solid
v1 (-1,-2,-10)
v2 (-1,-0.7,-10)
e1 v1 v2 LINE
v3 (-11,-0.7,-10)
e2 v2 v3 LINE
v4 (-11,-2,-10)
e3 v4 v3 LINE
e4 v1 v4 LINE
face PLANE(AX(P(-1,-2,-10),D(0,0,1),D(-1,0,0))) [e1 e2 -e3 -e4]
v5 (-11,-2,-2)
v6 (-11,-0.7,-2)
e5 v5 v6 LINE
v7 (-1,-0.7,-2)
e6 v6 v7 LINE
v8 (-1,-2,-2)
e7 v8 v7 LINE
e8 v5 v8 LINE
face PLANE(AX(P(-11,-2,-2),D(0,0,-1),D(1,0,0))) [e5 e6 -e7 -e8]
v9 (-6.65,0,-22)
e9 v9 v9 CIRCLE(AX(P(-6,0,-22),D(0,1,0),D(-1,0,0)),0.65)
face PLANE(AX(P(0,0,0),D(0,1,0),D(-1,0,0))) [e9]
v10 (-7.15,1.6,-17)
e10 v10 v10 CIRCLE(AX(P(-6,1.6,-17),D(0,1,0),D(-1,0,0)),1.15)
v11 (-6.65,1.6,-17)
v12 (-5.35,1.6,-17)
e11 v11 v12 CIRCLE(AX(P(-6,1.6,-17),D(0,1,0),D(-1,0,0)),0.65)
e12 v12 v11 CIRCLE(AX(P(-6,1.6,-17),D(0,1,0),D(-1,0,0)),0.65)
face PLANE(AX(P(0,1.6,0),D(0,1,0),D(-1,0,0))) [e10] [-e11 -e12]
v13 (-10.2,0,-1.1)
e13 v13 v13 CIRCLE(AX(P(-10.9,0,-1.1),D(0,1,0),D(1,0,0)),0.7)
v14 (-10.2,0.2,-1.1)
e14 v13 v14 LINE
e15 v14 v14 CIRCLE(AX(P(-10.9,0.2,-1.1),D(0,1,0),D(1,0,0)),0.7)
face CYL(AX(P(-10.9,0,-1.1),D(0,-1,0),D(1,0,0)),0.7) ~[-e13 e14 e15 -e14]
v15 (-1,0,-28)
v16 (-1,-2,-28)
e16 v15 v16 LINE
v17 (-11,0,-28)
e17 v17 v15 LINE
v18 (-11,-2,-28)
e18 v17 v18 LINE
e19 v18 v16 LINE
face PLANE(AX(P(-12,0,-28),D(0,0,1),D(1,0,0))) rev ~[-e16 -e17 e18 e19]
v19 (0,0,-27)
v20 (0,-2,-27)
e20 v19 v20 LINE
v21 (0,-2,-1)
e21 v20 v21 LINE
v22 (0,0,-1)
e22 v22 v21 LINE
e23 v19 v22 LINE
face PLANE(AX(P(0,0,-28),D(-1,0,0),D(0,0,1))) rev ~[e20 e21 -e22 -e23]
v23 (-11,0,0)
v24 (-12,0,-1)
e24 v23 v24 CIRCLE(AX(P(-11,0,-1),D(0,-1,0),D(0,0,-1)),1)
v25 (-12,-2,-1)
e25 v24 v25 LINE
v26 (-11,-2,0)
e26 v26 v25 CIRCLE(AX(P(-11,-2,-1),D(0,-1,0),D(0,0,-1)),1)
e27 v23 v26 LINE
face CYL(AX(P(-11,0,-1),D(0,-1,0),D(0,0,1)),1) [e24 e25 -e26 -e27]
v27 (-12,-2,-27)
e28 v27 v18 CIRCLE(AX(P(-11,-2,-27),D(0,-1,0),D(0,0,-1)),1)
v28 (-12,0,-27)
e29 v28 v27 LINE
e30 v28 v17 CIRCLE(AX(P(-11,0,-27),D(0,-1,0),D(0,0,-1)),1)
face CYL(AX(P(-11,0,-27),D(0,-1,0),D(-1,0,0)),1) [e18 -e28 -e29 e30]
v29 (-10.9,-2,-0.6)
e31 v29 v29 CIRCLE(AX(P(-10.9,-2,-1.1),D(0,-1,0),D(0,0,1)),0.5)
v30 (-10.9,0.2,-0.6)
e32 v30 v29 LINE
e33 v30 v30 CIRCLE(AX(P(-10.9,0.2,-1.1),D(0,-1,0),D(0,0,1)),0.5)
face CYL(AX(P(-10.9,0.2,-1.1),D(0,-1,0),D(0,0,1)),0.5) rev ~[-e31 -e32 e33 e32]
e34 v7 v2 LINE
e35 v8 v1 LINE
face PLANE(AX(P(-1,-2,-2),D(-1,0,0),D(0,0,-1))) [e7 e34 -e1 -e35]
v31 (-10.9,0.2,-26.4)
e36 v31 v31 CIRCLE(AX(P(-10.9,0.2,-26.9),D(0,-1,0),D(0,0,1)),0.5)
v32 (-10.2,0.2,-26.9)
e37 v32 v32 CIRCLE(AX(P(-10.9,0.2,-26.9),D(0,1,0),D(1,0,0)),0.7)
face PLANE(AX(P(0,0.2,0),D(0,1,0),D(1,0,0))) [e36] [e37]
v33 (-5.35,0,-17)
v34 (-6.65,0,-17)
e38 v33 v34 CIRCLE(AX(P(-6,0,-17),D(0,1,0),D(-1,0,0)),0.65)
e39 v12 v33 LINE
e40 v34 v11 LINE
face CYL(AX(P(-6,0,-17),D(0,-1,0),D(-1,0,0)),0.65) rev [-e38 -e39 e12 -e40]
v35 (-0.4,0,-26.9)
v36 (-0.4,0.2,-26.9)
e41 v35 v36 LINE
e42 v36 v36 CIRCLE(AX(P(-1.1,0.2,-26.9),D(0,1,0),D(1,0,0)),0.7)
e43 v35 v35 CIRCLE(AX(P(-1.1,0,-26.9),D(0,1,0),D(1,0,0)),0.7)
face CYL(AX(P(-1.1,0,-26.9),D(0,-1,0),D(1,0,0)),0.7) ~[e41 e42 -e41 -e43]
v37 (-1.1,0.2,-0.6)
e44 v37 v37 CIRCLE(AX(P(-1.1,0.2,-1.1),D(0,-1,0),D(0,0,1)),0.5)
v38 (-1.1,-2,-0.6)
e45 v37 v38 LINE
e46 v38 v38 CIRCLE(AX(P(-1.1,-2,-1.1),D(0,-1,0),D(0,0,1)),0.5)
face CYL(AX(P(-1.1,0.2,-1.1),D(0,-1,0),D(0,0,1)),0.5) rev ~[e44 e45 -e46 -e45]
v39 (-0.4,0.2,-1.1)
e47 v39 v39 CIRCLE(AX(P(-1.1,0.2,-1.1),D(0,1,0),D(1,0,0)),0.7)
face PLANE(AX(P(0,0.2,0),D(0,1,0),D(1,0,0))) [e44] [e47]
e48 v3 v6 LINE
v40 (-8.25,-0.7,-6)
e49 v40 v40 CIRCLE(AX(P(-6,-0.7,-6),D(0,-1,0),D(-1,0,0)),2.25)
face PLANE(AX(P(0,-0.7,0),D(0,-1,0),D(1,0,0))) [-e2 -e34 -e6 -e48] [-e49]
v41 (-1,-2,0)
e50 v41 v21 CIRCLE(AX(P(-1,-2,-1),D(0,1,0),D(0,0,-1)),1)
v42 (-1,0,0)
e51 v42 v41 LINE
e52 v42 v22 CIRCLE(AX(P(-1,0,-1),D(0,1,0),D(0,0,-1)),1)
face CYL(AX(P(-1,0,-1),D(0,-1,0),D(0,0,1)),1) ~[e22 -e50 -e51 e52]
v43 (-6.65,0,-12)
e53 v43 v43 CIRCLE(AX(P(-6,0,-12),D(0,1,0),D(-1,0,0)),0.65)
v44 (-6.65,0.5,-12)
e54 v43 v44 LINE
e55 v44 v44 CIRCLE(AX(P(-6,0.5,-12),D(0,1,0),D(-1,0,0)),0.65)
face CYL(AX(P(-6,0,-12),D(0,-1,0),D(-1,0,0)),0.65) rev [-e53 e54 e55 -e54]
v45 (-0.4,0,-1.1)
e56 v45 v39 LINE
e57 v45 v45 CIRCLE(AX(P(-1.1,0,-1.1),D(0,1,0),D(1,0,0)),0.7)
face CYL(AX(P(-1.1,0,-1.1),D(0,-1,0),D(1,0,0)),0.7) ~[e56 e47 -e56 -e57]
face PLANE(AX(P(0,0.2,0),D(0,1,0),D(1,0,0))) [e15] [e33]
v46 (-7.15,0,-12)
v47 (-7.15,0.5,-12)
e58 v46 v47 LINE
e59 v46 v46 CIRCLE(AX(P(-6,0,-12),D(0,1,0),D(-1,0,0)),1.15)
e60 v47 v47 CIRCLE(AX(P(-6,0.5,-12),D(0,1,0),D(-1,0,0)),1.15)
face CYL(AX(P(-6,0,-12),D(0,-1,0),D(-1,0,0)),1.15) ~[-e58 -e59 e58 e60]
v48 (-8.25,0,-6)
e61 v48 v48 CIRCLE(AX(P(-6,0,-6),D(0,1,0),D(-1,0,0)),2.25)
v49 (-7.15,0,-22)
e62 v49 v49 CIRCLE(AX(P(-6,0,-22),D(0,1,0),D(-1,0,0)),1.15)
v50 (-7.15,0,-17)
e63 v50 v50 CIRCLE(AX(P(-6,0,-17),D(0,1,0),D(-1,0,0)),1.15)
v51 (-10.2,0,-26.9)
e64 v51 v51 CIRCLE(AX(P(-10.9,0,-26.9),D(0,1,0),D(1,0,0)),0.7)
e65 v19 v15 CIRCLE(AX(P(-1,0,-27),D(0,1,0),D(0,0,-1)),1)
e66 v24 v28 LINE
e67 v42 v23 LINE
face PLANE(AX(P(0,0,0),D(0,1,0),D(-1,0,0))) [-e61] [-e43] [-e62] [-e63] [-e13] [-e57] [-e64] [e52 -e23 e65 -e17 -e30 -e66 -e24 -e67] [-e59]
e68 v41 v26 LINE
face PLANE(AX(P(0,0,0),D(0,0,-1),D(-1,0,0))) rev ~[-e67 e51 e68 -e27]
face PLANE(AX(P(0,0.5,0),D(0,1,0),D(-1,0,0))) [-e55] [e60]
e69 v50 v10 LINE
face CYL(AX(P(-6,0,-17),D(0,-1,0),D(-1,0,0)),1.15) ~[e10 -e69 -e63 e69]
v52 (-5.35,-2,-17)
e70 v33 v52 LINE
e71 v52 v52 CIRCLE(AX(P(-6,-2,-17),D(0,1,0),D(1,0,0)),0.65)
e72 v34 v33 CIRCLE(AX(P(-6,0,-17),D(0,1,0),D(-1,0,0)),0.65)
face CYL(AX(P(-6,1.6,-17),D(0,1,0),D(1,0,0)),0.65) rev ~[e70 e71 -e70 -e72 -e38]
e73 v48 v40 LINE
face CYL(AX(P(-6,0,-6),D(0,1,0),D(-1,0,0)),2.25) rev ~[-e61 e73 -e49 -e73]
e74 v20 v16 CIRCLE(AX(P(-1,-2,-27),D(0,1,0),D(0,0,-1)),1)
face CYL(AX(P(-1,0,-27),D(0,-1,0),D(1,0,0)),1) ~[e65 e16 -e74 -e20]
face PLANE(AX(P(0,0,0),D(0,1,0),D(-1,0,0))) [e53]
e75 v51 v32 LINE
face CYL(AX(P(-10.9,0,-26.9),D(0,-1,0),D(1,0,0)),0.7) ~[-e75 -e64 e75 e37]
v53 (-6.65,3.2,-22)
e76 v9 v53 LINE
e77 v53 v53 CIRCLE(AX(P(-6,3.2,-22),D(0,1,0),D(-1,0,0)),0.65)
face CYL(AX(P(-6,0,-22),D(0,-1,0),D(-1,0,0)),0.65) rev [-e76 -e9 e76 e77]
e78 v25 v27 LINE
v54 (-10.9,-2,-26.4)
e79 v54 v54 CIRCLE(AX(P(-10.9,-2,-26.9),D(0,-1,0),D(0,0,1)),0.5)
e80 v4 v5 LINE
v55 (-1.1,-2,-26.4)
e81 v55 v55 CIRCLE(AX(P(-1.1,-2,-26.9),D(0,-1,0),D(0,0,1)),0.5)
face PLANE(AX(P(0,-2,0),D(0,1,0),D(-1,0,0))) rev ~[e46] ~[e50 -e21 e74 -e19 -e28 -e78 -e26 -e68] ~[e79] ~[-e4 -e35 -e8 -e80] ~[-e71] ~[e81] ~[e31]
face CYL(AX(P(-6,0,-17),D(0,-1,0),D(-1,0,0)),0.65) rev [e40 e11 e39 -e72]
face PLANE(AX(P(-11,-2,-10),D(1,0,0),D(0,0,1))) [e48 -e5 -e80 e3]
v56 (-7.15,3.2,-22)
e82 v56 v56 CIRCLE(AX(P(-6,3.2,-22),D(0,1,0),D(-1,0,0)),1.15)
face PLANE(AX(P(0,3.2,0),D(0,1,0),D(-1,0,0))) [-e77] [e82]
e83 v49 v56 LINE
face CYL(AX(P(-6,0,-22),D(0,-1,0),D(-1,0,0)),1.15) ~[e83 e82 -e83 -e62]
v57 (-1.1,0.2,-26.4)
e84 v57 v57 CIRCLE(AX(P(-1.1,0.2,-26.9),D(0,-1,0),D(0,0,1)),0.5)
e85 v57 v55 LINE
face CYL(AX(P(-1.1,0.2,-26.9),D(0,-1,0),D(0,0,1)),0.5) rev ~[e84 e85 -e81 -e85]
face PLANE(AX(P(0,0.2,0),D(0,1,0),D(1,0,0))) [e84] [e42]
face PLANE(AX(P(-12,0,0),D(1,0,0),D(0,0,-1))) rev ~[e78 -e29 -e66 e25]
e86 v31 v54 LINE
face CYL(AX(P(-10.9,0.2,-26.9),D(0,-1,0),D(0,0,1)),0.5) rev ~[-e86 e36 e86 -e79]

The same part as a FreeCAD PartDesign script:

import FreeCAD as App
import Part
import Sketcher


def edges_at(feature, points):
    """Names of the edges that pass closest to the given points."""
    edges = feature.Shape.Edges
    near = lambda p: min(range(len(edges)), key=lambda i: edges[i].distToShape(Part.Vertex(*p))[0])
    return sorted({f"Edge{near(p) + 1}" for p in points})


def add_polygon(sketch, points):
    """Adds a closed chain of lines whose ends are joined by coincident constraints."""
    first, n = sketch.GeometryCount, len(points)
    for a, b in zip(points, points[1:] + points[:1]):
        sketch.addGeometry(Part.LineSegment(App.Vector(*a, 0), App.Vector(*b, 0)), False)
    for i in range(n):
        sketch.addConstraint(Sketcher.Constraint("Coincident", first + i, 2, first + (i + 1) % n, 1))

doc = App.newDocument("Part")
body = doc.addObject("PartDesign::Body", "Body")

# Sketch on XZ plane
sketch1 = body.newObject("Sketcher::SketchObject", "Sketch")
sketch1.AttachmentSupport = (doc.getObject("XZ_Plane"), [""])
sketch1.MapMode = "FlatFace"
add_polygon(sketch1, [(-12, 0), (0, 0), (0, -28), (-12, -28)])  # lines 0-3
sketch1.addConstraint(Sketcher.Constraint("Horizontal", 0))
sketch1.addConstraint(Sketcher.Constraint("Vertical", 1))
sketch1.addConstraint(Sketcher.Constraint("Horizontal", 2))
sketch1.addConstraint(Sketcher.Constraint("Vertical", 3))
sketch1.addConstraint(Sketcher.Constraint("Coincident", 0, 2, -1, 1))
sketch1.addConstraint(Sketcher.Constraint("DistanceX", 0, 1, 0, 2, 12.0))
sketch1.addConstraint(Sketcher.Constraint("DistanceY", 1, 2, 1, 1, 28.0))
pad1 = body.newObject("PartDesign::Pad", "Pad")
pad1.Profile = sketch1
pad1.Length = 2

# Sketch on XZ plane
sketch2 = body.newObject("Sketcher::SketchObject", "Sketch001")
sketch2.AttachmentSupport = (doc.getObject("XZ_Plane"), [""])
sketch2.MapMode = "FlatFace"
sketch2.addGeometry(Part.Circle(App.Vector(-6, -12, 0), App.Vector(0, 0, 1), 1.1), False)
sketch2.addGeometry(Part.Circle(App.Vector(-6, -12, 0), App.Vector(0, 0, 1), 0.7), False)
sketch2.addConstraint(Sketcher.Constraint("Coincident", 1, 3, 0, 3))
sketch2.addConstraint(Sketcher.Constraint("Diameter", 1, 1.3))
sketch2.addConstraint(Sketcher.Constraint("DistanceX", 0, 3, -1, 1, 6.0))
sketch2.addConstraint(Sketcher.Constraint("Diameter", 0, 2.3))
sketch2.addConstraint(Sketcher.Constraint("DistanceY", 0, 3, -1, 1, 12.0))
pad2 = body.newObject("PartDesign::Pad", "Pad001")
pad2.Profile = sketch2
pad2.Length = 0.5
pad2.Reversed = True

# Sketch on XZ plane
sketch3 = body.newObject("Sketcher::SketchObject", "Sketch002")
sketch3.AttachmentSupport = (doc.getObject("XZ_Plane"), [""])
sketch3.MapMode = "FlatFace"
sketch3.addGeometry(Part.Circle(App.Vector(-6, -17, 0), App.Vector(0, 0, 1), 1.1), False)
sketch3.addGeometry(Part.Circle(App.Vector(-6, -17, 0), App.Vector(0, 0, 1), 0.7), False)
sketch3.addConstraint(Sketcher.Constraint("Coincident", 1, 3, 0, 3))
sketch3.addConstraint(Sketcher.Constraint("Diameter", 1, 1.3))
sketch3.addConstraint(Sketcher.Constraint("DistanceX", 0, 3, -1, 1, 6.0))
sketch3.addConstraint(Sketcher.Constraint("Diameter", 0, 2.3))
sketch3.addConstraint(Sketcher.Constraint("DistanceY", 0, 3, -1, 1, 17.0))
pad3 = body.newObject("PartDesign::Pad", "Pad002")
pad3.Profile = sketch3
pad3.Length = 1.6
pad3.Reversed = True

# Sketch on XZ plane
sketch4 = body.newObject("Sketcher::SketchObject", "Sketch003")
sketch4.AttachmentSupport = (doc.getObject("XZ_Plane"), [""])
sketch4.MapMode = "FlatFace"
sketch4.addGeometry(Part.Circle(App.Vector(-6, -22, 0), App.Vector(0, 0, 1), 1.1), False)
sketch4.addGeometry(Part.Circle(App.Vector(-6, -22, 0), App.Vector(0, 0, 1), 0.7), False)
sketch4.addConstraint(Sketcher.Constraint("Coincident", 1, 3, 0, 3))
sketch4.addConstraint(Sketcher.Constraint("Diameter", 1, 1.3))
sketch4.addConstraint(Sketcher.Constraint("DistanceX", 0, 3, -1, 1, 6.0))
sketch4.addConstraint(Sketcher.Constraint("Diameter", 0, 2.3))
sketch4.addConstraint(Sketcher.Constraint("DistanceY", 0, 3, -1, 1, 22.0))
pad4 = body.newObject("PartDesign::Pad", "Pad003")
pad4.Profile = sketch4
pad4.Length = 3.2
pad4.Reversed = True

# Sketch on XZ plane
sketch5 = body.newObject("Sketcher::SketchObject", "Sketch004")
sketch5.AttachmentSupport = (doc.getObject("XZ_Plane"), [""])
sketch5.MapMode = "FlatFace"
sketch5.AttachmentOffset = App.Placement(App.Vector(0, 0, -1.6), App.Rotation())
sketch5.addGeometry(Part.Circle(App.Vector(-6, -17, 0), App.Vector(0, 0, 1), 0.7), False)
sketch5.addConstraint(Sketcher.Constraint("Diameter", 0, 1.3))
sketch5.addConstraint(Sketcher.Constraint("DistanceX", 0, 3, -1, 1, 6.0))
sketch5.addConstraint(Sketcher.Constraint("DistanceY", 0, 3, -1, 1, 17.0))
pocket1 = body.newObject("PartDesign::Pocket", "Pocket")
pocket1.Profile = sketch5
pocket1.Type = "ThroughAll"
pocket1.Reversed = True

# Sketch on XZ plane
sketch6 = body.newObject("Sketcher::SketchObject", "Sketch005")
sketch6.AttachmentSupport = (doc.getObject("XZ_Plane"), [""])
sketch6.MapMode = "FlatFace"
sketch6.addGeometry(Part.Circle(App.Vector(-6, -6, 0), App.Vector(0, 0, 1), 2.2), False)
sketch6.addConstraint(Sketcher.Constraint("Diameter", 0, 4.5))
sketch6.addConstraint(Sketcher.Constraint("DistanceX", 0, 3, -1, 1, 6.0))
sketch6.addConstraint(Sketcher.Constraint("DistanceY", 0, 3, -1, 1, 6.0))
pocket2 = body.newObject("PartDesign::Pocket", "Pocket001")
pocket2.Profile = sketch6
pocket2.Type = "ThroughAll"
pocket2.Reversed = True

# Sketch on XZ plane
sketch7 = body.newObject("Sketcher::SketchObject", "Sketch006")
sketch7.AttachmentSupport = (doc.getObject("XZ_Plane"), [""])
sketch7.MapMode = "FlatFace"
sketch7.AttachmentOffset = App.Placement(App.Vector(0, 0, 2), App.Rotation())
add_polygon(sketch7, [(-11, -10), (-1, -10), (-1, -2), (-11, -2)])  # lines 0-3
sketch7.addGeometry(Part.Circle(App.Vector(-6, -6, 0), App.Vector(0, 0, 1), 2.2), False)  # 4
sketch7.addConstraint(Sketcher.Constraint("Horizontal", 0))
sketch7.addConstraint(Sketcher.Constraint("Vertical", 1))
sketch7.addConstraint(Sketcher.Constraint("Horizontal", 2))
sketch7.addConstraint(Sketcher.Constraint("Vertical", 3))
sketch7.addConstraint(Sketcher.Constraint("DistanceX", 0, 1, 0, 2, 10.0))
sketch7.addConstraint(Sketcher.Constraint("DistanceY", 1, 1, 1, 2, 8.0))
sketch7.addConstraint(Sketcher.Constraint("DistanceY", 0, 2, -1, 1, 10.0))
sketch7.addConstraint(Sketcher.Constraint("Diameter", 4, 4.5))
sketch7.addConstraint(Sketcher.Constraint("DistanceX", 4, 3, -1, 1, 6.0))
sketch7.addConstraint(Sketcher.Constraint("DistanceY", 4, 3, -1, 1, 6.0))
sketch7.addConstraint(Sketcher.Constraint("DistanceX", 0, 2, -1, 1, 1.0))
pocket3 = body.newObject("PartDesign::Pocket", "Pocket002")
pocket3.Profile = sketch7
pocket3.Length = 1.3

# Sketch on XZ plane
sketch8 = body.newObject("Sketcher::SketchObject", "Sketch007")
sketch8.AttachmentSupport = (doc.getObject("XZ_Plane"), [""])
sketch8.MapMode = "FlatFace"
sketch8.addGeometry(Part.Circle(App.Vector(-1.1, -1.1, 0), App.Vector(0, 0, 1), 0.7), False)
sketch8.addGeometry(Part.Circle(App.Vector(-10.9, -1.1, 0), App.Vector(0, 0, 1), 0.7), False)
sketch8.addGeometry(Part.Circle(App.Vector(-1.1, -26.9, 0), App.Vector(0, 0, 1), 0.7), False)
sketch8.addGeometry(Part.Circle(App.Vector(-10.9, -26.9, 0), App.Vector(0, 0, 1), 0.7), False)
sketch8.addConstraint(Sketcher.Constraint("Equal", 0, 1))
sketch8.addConstraint(Sketcher.Constraint("Equal", 1, 2))
sketch8.addConstraint(Sketcher.Constraint("Equal", 2, 3))
sketch8.addConstraint(Sketcher.Constraint("Horizontal", 0, 3, 1, 3))
sketch8.addConstraint(Sketcher.Constraint("Horizontal", 2, 3, 3, 3))
sketch8.addConstraint(Sketcher.Constraint("Vertical", 0, 3, 2, 3))
sketch8.addConstraint(Sketcher.Constraint("Vertical", 1, 3, 3, 3))
sketch8.addConstraint(Sketcher.Constraint("Diameter", 0, 1.4))
sketch8.addConstraint(Sketcher.Constraint("DistanceX", 0, 3, -1, 1, 1.1))
sketch8.addConstraint(Sketcher.Constraint("DistanceY", 0, 3, -1, 1, 1.1))
sketch8.addConstraint(Sketcher.Constraint("DistanceX", 1, 3, -1, 1, 10.9))
sketch8.addConstraint(Sketcher.Constraint("DistanceY", 2, 3, -1, 1, 26.9))
pad5 = body.newObject("PartDesign::Pad", "Pad004")
pad5.Profile = sketch8
pad5.Length = 0.2
pad5.Reversed = True

# Sketch on XZ plane
sketch9 = body.newObject("Sketcher::SketchObject", "Sketch008")
sketch9.AttachmentSupport = (doc.getObject("XZ_Plane"), [""])
sketch9.MapMode = "FlatFace"
sketch9.AttachmentOffset = App.Placement(App.Vector(0, 0, -0.2), App.Rotation())
sketch9.addGeometry(Part.Circle(App.Vector(-10.9, -1.1, 0), App.Vector(0, 0, 1), 0.5), False)
sketch9.addGeometry(Part.Circle(App.Vector(-1.1, -1.1, 0), App.Vector(0, 0, 1), 0.5), False)
sketch9.addGeometry(Part.Circle(App.Vector(-10.9, -26.9, 0), App.Vector(0, 0, 1), 0.5), False)
sketch9.addGeometry(Part.Circle(App.Vector(-1.1, -26.9, 0), App.Vector(0, 0, 1), 0.5), False)
sketch9.addConstraint(Sketcher.Constraint("Equal", 0, 1))
sketch9.addConstraint(Sketcher.Constraint("Equal", 1, 2))
sketch9.addConstraint(Sketcher.Constraint("Equal", 2, 3))
sketch9.addConstraint(Sketcher.Constraint("Horizontal", 0, 3, 1, 3))
sketch9.addConstraint(Sketcher.Constraint("Horizontal", 2, 3, 3, 3))
sketch9.addConstraint(Sketcher.Constraint("Vertical", 0, 3, 2, 3))
sketch9.addConstraint(Sketcher.Constraint("Vertical", 1, 3, 3, 3))
sketch9.addConstraint(Sketcher.Constraint("Diameter", 0, 1.0))
sketch9.addConstraint(Sketcher.Constraint("DistanceX", 0, 3, -1, 1, 10.9))
sketch9.addConstraint(Sketcher.Constraint("DistanceY", 0, 3, -1, 1, 1.1))
sketch9.addConstraint(Sketcher.Constraint("DistanceX", 1, 3, -1, 1, 1.1))
sketch9.addConstraint(Sketcher.Constraint("DistanceY", 2, 3, -1, 1, 26.9))
doc.recompute()
hole = body.newObject("PartDesign::Hole", "Hole")
hole.Profile = sketch9
hole.ThreadType = "None"
hole.Diameter = 1
hole.DepthType = "ThroughAll"
hole.Reversed = True
doc.recompute()

fillet = body.newObject("PartDesign::Fillet", "Fillet")
fillet.Base = (hole, edges_at(hole, [
    (0, -1, 0),
    (-12, -1, 0),
    (0, -1, -28),
    (-12, -1, -28),
]))
fillet.Radius = 1

doc.recompute()
